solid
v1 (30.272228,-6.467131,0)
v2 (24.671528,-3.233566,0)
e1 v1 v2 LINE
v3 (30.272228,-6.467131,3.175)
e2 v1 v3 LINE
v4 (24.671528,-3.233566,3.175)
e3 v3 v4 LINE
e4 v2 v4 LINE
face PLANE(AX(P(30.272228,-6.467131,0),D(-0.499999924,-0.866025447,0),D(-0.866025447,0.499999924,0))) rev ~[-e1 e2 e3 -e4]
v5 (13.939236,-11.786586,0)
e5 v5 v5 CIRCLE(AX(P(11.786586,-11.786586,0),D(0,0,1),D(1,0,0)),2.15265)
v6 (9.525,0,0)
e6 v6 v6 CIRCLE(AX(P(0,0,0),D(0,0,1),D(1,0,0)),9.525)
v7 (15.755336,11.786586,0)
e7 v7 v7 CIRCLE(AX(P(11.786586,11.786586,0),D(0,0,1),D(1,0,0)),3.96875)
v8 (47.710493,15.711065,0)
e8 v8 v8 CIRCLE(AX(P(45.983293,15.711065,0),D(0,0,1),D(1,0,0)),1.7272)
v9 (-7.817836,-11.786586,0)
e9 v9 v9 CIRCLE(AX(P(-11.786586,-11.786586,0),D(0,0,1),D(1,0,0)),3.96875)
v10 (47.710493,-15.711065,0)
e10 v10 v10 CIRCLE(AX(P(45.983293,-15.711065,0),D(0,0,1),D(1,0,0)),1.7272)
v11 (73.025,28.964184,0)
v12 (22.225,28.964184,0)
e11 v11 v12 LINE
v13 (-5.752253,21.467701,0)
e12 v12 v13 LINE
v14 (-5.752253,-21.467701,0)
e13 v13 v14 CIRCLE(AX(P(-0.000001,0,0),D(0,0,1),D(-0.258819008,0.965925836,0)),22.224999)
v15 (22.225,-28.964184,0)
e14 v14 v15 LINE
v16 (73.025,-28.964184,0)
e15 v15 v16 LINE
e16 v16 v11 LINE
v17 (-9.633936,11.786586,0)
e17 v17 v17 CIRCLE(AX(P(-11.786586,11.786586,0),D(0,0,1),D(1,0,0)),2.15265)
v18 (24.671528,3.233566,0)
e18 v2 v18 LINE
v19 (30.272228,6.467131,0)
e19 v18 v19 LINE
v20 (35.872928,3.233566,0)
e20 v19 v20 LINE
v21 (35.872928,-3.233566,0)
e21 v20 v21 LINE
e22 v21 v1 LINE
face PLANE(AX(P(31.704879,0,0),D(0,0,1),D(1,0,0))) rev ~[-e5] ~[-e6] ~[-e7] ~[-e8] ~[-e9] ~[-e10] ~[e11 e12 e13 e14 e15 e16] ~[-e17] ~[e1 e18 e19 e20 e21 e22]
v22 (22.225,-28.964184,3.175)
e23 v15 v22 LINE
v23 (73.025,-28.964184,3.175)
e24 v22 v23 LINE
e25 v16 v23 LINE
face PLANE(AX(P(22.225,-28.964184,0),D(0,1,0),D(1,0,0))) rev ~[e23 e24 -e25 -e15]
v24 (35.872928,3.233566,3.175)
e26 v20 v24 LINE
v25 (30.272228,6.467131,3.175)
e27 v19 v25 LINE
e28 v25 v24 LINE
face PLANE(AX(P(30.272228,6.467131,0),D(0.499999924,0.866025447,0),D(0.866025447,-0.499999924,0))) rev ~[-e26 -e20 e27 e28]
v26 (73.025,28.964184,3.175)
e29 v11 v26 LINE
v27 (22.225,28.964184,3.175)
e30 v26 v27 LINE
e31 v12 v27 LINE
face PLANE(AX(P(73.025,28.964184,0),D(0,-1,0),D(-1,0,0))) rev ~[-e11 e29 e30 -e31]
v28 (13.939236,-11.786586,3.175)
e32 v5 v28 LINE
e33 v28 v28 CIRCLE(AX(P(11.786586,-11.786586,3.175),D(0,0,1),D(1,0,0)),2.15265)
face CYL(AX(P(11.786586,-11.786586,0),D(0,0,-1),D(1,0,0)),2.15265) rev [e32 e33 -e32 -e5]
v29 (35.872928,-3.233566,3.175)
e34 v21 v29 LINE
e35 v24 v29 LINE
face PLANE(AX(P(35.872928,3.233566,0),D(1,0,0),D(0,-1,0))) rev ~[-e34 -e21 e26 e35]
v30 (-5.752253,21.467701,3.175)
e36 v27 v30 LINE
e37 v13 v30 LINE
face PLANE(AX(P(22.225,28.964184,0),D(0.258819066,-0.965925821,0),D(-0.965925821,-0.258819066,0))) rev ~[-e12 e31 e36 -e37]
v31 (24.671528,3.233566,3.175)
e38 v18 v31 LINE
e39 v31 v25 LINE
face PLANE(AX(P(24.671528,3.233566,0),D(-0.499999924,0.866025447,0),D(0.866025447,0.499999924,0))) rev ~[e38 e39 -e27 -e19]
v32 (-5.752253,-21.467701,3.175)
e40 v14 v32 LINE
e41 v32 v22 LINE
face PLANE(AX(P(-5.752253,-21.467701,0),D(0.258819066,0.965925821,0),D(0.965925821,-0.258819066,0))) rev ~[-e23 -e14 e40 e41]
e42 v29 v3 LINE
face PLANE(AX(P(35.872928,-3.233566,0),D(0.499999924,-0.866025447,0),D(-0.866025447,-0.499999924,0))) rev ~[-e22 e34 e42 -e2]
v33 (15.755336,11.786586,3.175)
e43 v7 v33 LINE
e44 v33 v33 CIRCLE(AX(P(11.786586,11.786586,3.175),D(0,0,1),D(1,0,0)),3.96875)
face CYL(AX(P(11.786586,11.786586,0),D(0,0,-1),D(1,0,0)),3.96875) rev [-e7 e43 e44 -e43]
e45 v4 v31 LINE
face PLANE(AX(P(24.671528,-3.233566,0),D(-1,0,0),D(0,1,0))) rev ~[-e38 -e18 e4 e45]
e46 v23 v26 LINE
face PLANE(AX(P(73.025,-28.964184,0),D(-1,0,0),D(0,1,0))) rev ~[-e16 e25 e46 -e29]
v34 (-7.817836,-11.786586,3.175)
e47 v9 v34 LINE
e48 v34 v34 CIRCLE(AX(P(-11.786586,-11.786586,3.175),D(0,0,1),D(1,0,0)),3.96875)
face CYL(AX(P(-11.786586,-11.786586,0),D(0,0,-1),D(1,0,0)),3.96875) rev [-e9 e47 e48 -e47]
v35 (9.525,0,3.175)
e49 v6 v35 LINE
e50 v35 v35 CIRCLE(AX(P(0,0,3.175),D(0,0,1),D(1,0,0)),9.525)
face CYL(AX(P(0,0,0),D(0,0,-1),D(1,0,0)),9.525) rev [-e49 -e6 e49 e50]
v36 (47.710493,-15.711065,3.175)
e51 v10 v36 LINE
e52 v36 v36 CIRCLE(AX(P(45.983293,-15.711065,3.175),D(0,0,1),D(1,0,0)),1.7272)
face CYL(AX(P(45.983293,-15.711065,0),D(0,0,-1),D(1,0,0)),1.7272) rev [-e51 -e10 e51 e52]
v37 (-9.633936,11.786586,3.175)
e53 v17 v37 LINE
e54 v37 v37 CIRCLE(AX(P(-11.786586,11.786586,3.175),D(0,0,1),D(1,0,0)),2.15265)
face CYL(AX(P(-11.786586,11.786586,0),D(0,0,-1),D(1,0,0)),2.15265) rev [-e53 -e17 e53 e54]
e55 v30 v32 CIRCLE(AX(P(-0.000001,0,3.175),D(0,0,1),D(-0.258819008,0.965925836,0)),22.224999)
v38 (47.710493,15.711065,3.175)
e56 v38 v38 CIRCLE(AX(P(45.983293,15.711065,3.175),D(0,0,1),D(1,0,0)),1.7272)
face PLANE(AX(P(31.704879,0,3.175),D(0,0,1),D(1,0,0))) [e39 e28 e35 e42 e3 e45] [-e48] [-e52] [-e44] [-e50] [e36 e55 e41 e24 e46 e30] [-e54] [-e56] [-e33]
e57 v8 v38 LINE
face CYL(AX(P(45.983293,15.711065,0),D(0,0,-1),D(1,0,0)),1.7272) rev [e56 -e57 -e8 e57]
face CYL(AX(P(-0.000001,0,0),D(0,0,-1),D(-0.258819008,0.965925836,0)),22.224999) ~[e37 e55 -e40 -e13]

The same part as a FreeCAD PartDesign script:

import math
import FreeCAD as App
import Part
import Sketcher
Q = App.Units.Quantity


def add_polygon(sketch, points):
    """Adds a closed chain of lines whose ends are joined by coincident constraints."""
    first, n = sketch.GeometryCount, len(points)
    for a, b in zip(points, points[1:] + points[:1]):
        sketch.addGeometry(Part.LineSegment(App.Vector(*a, 0), App.Vector(*b, 0)), False)
    for i in range(n):
        sketch.addConstraint(Sketcher.Constraint("Coincident", first + i, 2, first + (i + 1) % n, 1))

doc = App.newDocument("Part")
body = doc.addObject("PartDesign::Body", "Body")

sketch1 = body.newObject("Sketcher::SketchObject", "Sketch")
sketch1.AttachmentSupport = (doc.getObject("XY_Plane"), [""])
sketch1.MapMode = "FlatFace"
sketch1.addGeometry(Part.LineSegment(App.Vector(73.025, 28.964184, 0), App.Vector(22.225, 28.964184, 0)), False)
sketch1.addGeometry(Part.LineSegment(App.Vector(22.225, 28.964184, 0), App.Vector(-5.752253, 21.467701, 0)), False)
sketch1.addGeometry(Part.ArcOfCircle(Part.Circle(App.Vector(-0.000001, 0, 0), App.Vector(0, 0, 1), 22.224999), math.radians(104.999998), math.radians(255.000002)), False)
sketch1.addGeometry(Part.LineSegment(App.Vector(-5.752253, -21.467701, 0), App.Vector(22.225, -28.964184, 0)), False)
sketch1.addGeometry(Part.LineSegment(App.Vector(22.225, -28.964184, 0), App.Vector(73.025, -28.964184, 0)), False)
sketch1.addGeometry(Part.LineSegment(App.Vector(73.025, -28.964184, 0), App.Vector(73.025, 28.964184, 0)), False)
sketch1.addGeometry(Part.Circle(App.Vector(-11.786586, -11.786586, 0), App.Vector(0, 0, 1), 3.96875), False)
sketch1.addGeometry(Part.Circle(App.Vector(11.786586, -11.786586, 0), App.Vector(0, 0, 1), 2.15265), False)
sketch1.addGeometry(Part.Circle(App.Vector(45.983293, -15.711065, 0), App.Vector(0, 0, 1), 1.7272), False)
sketch1.addGeometry(Part.Circle(App.Vector(0, 0, 0), App.Vector(0, 0, 1), 9.525), False)
sketch1.addGeometry(Part.Circle(App.Vector(-11.786586, 11.786586, 0), App.Vector(0, 0, 1), 2.15265), False)
sketch1.addGeometry(Part.Circle(App.Vector(11.786586, 11.786586, 0), App.Vector(0, 0, 1), 3.96875), False)
add_polygon(sketch1, [(24.671528, 3.233566), (30.272228, 6.467131), (35.872928, 3.233566), (35.872928, -3.233566), (30.272228, -6.467131), (24.671528, -3.233566)])
sketch1.addGeometry(Part.Circle(App.Vector(45.983293, 15.711065, 0), App.Vector(0, 0, 1), 1.7272), False)
sketch1.addConstraint([
    Sketcher.Constraint("Coincident", 0, 2, 1, 1),
    Sketcher.Constraint("Tangent", 1, 2, 2, 1),
    Sketcher.Constraint("Tangent", 2, 2, 3, 1),
    Sketcher.Constraint("Coincident", 3, 2, 4, 1),
    Sketcher.Constraint("Coincident", 4, 2, 5, 1),
    Sketcher.Constraint("Coincident", 5, 2, 0, 1),
    Sketcher.Constraint("Horizontal", 0),
    Sketcher.Constraint("Horizontal", 4),
    Sketcher.Constraint("Vertical", 5),
    Sketcher.Constraint("Vertical", 14),
    Sketcher.Constraint("Vertical", 17),
    Sketcher.Constraint("Coincident", 2, 3, -1, 1),
    Sketcher.Constraint("Coincident", 9, 3, -1, 1),
    Sketcher.Constraint("Equal", 7, 10),
    Sketcher.Constraint("Equal", 6, 11),
    Sketcher.Constraint("Equal", 8, 18),
    Sketcher.Constraint("Symmetric", 7, 3, 10, 3, -1, 1),
    Sketcher.Constraint("Symmetric", 6, 3, 11, 3, -1, 1),
    Sketcher.Constraint("Symmetric", 6, 3, 7, 3, -2),
    Sketcher.Constraint("Symmetric", 8, 3, 18, 3, -1),
    Sketcher.Constraint("Symmetric", 0, 2, 3, 2, -1),
    Sketcher.Constraint("Symmetric", 12, 2, 15, 2, -1),
    Sketcher.Constraint("Parallel", 12, 15),
    Sketcher.Constraint("Parallel", 13, 16),
    Sketcher.Constraint("Horizontal", 14, 2, 16, 2),
    Sketcher.Constraint("Horizontal", 13, 2, 17, 2),
    Sketcher.Constraint("Diameter", 9, Q("0.75 in")),
    Sketcher.Constraint("DistanceX", 0, 2, 0, 1, Q("2 in")),
    Sketcher.Constraint("Diameter", 6, Q("0.3125 in")),
    Sketcher.Constraint("Diameter", 8, Q("0.136 in")),
    Sketcher.Constraint("Angle", 1, Q("-164.999999 deg")),
    Sketcher.Constraint("Angle", 12, Q("29.999995 deg")),
    Sketcher.Constraint("Radius", 2, Q("0.875 in")),
    Sketcher.Constraint("Diameter", 7, Q("0.1695 in")),
    Sketcher.Constraint("DistanceX", -1, 1, 0, 2, Q("0.875 in")),
    Sketcher.Constraint("DistanceX", 16, 2, 14, 2, Q("0.441 in")),
    Sketcher.Constraint("DistanceY", 13, 2, 18, 3, 12.477499),
    Sketcher.Constraint("DistanceY", 14, 2, 14, 1, 6.467132),
    Sketcher.Constraint("DistanceX", -1, 1, 13, 2, 35.872928),
    Sketcher.Constraint("DistanceX", 6, 3, 7, 3, 23.573172),
    Sketcher.Constraint("DistanceY", 8, 3, 7, 3, 3.924479),
    Sketcher.Constraint("DistanceX", 6, 3, 8, 3, 57.769879),
])
pad1 = body.newObject("PartDesign::Pad", "Pad")
pad1.Profile = sketch1
pad1.Length = Q("0.125 in")

doc.recompute()
